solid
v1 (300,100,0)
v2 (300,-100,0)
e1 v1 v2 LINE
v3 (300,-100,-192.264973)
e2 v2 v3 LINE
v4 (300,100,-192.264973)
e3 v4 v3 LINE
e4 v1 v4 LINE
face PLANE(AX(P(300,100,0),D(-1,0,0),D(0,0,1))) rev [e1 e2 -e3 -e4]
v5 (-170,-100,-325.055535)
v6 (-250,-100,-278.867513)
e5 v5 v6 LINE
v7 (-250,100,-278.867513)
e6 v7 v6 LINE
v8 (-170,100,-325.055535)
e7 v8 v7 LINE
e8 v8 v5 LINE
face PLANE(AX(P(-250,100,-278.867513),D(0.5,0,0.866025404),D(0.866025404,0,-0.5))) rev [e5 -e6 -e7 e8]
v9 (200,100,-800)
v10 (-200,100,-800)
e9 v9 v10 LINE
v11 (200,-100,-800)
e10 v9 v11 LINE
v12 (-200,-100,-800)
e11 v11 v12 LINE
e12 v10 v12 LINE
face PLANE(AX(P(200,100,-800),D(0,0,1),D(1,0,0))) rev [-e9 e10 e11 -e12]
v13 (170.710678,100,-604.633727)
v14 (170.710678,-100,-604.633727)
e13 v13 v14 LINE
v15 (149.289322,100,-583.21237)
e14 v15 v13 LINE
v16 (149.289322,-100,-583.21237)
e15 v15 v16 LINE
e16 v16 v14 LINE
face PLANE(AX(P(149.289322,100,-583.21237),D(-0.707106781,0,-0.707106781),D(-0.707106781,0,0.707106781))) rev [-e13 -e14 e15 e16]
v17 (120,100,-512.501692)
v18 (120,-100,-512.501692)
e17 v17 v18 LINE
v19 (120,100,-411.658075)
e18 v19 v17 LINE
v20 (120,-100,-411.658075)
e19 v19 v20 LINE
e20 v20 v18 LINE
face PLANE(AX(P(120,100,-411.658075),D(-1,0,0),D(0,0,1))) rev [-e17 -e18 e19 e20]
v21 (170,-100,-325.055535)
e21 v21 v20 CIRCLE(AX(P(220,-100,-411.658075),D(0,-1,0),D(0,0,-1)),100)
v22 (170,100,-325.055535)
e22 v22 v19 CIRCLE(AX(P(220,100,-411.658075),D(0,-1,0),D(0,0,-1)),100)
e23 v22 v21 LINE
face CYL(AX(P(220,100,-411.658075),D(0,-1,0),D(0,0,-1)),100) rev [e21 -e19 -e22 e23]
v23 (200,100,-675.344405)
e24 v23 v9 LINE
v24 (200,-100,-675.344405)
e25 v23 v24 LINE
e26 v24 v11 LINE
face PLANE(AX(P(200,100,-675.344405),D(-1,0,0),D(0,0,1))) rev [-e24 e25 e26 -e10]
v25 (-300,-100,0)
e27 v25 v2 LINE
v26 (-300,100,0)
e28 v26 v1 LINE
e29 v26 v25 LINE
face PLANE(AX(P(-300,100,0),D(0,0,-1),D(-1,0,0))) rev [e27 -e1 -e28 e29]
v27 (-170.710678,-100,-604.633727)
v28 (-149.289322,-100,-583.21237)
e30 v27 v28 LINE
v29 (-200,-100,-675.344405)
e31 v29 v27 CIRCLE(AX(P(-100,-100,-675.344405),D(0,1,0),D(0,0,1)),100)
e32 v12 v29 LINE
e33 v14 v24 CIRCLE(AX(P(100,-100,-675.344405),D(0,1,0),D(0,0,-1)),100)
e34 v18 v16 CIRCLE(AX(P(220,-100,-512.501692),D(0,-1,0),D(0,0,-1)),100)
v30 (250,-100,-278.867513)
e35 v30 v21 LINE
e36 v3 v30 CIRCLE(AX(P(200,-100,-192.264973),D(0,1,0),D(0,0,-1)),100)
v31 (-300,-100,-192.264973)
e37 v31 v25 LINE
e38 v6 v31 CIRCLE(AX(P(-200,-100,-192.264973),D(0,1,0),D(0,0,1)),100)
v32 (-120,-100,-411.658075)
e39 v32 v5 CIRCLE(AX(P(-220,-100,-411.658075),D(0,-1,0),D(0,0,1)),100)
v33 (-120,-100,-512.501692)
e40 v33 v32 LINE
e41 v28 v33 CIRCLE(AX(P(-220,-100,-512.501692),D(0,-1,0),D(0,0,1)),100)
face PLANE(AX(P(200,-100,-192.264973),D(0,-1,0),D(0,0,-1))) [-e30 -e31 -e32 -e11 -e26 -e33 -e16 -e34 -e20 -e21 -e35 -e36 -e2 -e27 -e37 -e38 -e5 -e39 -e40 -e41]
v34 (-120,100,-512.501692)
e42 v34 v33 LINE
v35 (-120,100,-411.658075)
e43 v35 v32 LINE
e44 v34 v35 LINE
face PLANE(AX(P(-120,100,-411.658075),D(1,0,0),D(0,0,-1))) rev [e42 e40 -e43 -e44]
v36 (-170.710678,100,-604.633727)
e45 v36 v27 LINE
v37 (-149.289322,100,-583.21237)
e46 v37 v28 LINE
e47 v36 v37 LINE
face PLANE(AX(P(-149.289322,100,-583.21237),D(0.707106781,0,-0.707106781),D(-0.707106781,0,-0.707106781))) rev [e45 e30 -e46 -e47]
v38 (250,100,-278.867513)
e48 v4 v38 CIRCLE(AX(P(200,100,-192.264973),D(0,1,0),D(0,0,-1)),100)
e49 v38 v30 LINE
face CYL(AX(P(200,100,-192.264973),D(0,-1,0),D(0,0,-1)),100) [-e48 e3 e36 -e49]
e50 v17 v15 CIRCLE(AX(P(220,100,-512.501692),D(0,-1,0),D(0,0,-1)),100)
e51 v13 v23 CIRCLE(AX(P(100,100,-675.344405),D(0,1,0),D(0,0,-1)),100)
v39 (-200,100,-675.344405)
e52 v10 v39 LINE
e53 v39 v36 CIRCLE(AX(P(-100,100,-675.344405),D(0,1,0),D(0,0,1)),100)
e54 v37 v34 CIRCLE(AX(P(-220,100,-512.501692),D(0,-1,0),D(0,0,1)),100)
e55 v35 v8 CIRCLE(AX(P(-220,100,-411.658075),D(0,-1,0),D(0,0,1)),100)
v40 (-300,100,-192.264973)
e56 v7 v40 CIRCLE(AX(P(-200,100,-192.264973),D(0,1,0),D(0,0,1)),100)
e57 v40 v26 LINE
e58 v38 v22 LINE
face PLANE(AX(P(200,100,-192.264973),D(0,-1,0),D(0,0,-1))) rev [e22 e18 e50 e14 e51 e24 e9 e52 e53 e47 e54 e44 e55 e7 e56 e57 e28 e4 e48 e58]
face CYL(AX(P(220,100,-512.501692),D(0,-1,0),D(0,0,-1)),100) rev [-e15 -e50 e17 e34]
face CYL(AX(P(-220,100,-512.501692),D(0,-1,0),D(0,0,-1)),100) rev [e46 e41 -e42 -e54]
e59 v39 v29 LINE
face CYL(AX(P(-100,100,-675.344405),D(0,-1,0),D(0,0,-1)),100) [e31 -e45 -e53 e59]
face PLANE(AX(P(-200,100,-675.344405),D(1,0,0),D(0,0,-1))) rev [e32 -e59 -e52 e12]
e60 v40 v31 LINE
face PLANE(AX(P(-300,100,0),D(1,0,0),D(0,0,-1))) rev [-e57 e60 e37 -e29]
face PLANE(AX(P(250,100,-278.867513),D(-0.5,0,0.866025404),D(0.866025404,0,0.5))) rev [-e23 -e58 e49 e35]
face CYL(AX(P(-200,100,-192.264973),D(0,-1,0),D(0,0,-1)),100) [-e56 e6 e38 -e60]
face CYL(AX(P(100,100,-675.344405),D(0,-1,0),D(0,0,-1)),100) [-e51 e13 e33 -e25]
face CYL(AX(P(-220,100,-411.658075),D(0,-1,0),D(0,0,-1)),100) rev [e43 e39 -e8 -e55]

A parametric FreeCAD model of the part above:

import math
import FreeCAD as App
import Part
import Sketcher
Q = App.Units.Quantity

doc = App.newDocument("Part")
body = doc.addObject("PartDesign::Body", "Body")

sketch1 = doc.addObject("Sketcher::SketchObject", "Sketch")
body.addObject(sketch1)
sketch1.AttachmentSupport = (doc.XZ_Plane, [""])
sketch1.MapMode = "FlatFace"
sketch1.addGeometry([
    Part.LineSegment(App.Vector(-300, 0, 0), App.Vector(300, 0, 0)),
    Part.LineSegment(App.Vector(300, 0, 0), App.Vector(300, -192, 0)),
    Part.ArcOfCircle(Part.Circle(App.Vector(200, -192, 0), App.Vector(0, 0, 1), 100), math.radians(-60), math.radians(0)),
    Part.LineSegment(App.Vector(250, -279, 0), App.Vector(170, -325, 0)),
    Part.ArcOfCircle(Part.Circle(App.Vector(220, -412, 0), App.Vector(0, 0, 1), 100), math.radians(120), math.radians(180)),
    Part.LineSegment(App.Vector(120, -412, 0), App.Vector(120, -513, 0)),
    Part.ArcOfCircle(Part.Circle(App.Vector(220, -513, 0), App.Vector(0, 0, 1), 100), math.radians(-180), math.radians(-135)),
    Part.LineSegment(App.Vector(149, -583, 0), App.Vector(171, -605, 0)),
    Part.ArcOfCircle(Part.Circle(App.Vector(100, -675, 0), App.Vector(0, 0, 1), 100), math.radians(0), math.radians(45)),
    Part.LineSegment(App.Vector(200, -675, 0), App.Vector(200, -800, 0)),
    Part.LineSegment(App.Vector(200, -800, 0), App.Vector(-200, -800, 0)),
    Part.LineSegment(App.Vector(-200, -800, 0), App.Vector(-200, -675, 0)),
    Part.ArcOfCircle(Part.Circle(App.Vector(-100, -675, 0), App.Vector(0, 0, 1), 100), math.radians(135), math.radians(180)),
    Part.LineSegment(App.Vector(-171, -605, 0), App.Vector(-149, -583, 0)),
    Part.ArcOfCircle(Part.Circle(App.Vector(-220, -513, 0), App.Vector(0, 0, 1), 100), math.radians(-45), math.radians(0)),
    Part.LineSegment(App.Vector(-120, -513, 0), App.Vector(-120, -412, 0)),
    Part.ArcOfCircle(Part.Circle(App.Vector(-220, -412, 0), App.Vector(0, 0, 1), 100), math.radians(0), math.radians(60)),
    Part.LineSegment(App.Vector(-170, -325, 0), App.Vector(-250, -279, 0)),
    Part.ArcOfCircle(Part.Circle(App.Vector(-200, -192, 0), App.Vector(0, 0, 1), 100), math.radians(-180), math.radians(-120)),
    Part.LineSegment(App.Vector(-300, -192, 0), App.Vector(-300, 0, 0)),
], False)
sketch1.addConstraint([
    Sketcher.Constraint("Coincident", 0, 2, 1, 1),
    Sketcher.Constraint("Tangent", 1, 2, 2, 2),
    Sketcher.Constraint("Tangent", 2, 1, 3, 1),
    Sketcher.Constraint("Tangent", 3, 2, 4, 1),
    Sketcher.Constraint("Tangent", 4, 2, 5, 1),
    Sketcher.Constraint("Tangent", 5, 2, 6, 1),
    Sketcher.Constraint("Tangent", 6, 2, 7, 1),
    Sketcher.Constraint("Tangent", 7, 2, 8, 2),
    Sketcher.Constraint("Tangent", 8, 1, 9, 1),
    Sketcher.Constraint("Coincident", 9, 2, 10, 1),
    Sketcher.Constraint("Coincident", 10, 2, 11, 1),
    Sketcher.Constraint("Tangent", 11, 2, 12, 2),
    Sketcher.Constraint("Tangent", 12, 1, 13, 1),
    Sketcher.Constraint("Tangent", 13, 2, 14, 1),
    Sketcher.Constraint("Tangent", 14, 2, 15, 1),
    Sketcher.Constraint("Tangent", 15, 2, 16, 1),
    Sketcher.Constraint("Tangent", 16, 2, 17, 1),
    Sketcher.Constraint("Tangent", 17, 2, 18, 2),
    Sketcher.Constraint("Tangent", 18, 1, 19, 1),
    Sketcher.Constraint("Coincident", 19, 2, 0, 1),
    Sketcher.Constraint("Horizontal", 0),
    Sketcher.Constraint("Vertical", 1),
    Sketcher.Constraint("Vertical", 5),
    Sketcher.Constraint("Vertical", 9),
    Sketcher.Constraint("Horizontal", 10),
    Sketcher.Constraint("Vertical", 11),
    Sketcher.Constraint("Vertical", 15),
    Sketcher.Constraint("Vertical", 19),
    Sketcher.Constraint("Equal", 2, 4),
    Sketcher.Constraint("Equal", 4, 6),
    Sketcher.Constraint("Equal", 6, 8),
    Sketcher.Constraint("Equal", 8, 12),
    Sketcher.Constraint("Equal", 12, 14),
    Sketcher.Constraint("Equal", 14, 16),
    Sketcher.Constraint("Equal", 16, 18),
    Sketcher.Constraint("Symmetric", 0, 2, 19, 2, -1, 1),
    Sketcher.Constraint("Symmetric", 8, 3, 12, 3, -2),
    Sketcher.Constraint("Symmetric", 6, 3, 14, 3, -2),
    Sketcher.Constraint("Symmetric", 3, 2, 16, 2, -2),
    Sketcher.Constraint("Perpendicular", 7, 13),
    Sketcher.Constraint("Vertical", 2, 3, 8, 1),
    Sketcher.Constraint("Radius", 2, 100.0),
    Sketcher.Constraint("DistanceX", 0, 1, 0, 2, 600.0),
    Sketcher.Constraint("Angle", 3, Q("-150 deg")),
    Sketcher.Constraint("DistanceX", -1, 1, 4, 3, 220.0),
    Sketcher.Constraint("DistanceY", 9, 2, -1, 1, 800.0),
    Sketcher.Constraint("DistanceY", 1, 2, 1, 1, 192.264973),
    Sketcher.Constraint("DistanceY", 5, 2, 5, 1, 100.843617),
])
pad1 = doc.addObject("PartDesign::Pad", "Pad")
body.addObject(pad1)
pad1.Profile = sketch1
pad1.Length = 200
pad1.Midplane = True

doc.recompute()
